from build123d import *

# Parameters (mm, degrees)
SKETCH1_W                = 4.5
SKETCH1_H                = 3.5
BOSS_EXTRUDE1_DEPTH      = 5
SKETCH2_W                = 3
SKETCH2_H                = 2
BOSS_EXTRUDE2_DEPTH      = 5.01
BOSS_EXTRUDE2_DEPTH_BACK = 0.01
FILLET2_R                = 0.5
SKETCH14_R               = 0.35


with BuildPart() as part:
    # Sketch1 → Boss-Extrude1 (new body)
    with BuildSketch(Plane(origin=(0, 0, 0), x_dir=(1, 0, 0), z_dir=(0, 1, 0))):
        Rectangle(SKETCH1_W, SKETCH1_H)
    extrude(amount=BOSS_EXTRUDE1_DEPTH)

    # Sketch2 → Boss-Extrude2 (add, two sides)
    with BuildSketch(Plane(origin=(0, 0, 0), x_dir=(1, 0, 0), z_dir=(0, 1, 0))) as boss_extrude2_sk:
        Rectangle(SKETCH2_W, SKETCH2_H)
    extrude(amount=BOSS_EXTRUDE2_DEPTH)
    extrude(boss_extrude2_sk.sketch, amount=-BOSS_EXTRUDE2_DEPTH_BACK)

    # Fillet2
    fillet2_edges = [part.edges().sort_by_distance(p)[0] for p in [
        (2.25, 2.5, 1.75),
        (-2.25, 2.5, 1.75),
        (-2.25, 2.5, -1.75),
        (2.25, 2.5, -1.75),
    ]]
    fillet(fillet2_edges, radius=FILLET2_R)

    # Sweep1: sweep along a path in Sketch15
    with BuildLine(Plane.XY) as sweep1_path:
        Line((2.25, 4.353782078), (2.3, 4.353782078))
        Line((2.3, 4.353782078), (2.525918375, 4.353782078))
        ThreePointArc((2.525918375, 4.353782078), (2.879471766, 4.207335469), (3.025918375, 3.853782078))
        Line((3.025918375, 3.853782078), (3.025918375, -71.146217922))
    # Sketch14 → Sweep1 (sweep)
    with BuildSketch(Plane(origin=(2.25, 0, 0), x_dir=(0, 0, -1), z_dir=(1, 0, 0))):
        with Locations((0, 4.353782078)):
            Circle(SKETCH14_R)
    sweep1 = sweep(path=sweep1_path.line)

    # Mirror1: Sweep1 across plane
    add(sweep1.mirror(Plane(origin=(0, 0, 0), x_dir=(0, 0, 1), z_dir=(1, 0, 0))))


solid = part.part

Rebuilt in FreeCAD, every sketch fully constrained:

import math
import FreeCAD as App
import Part
import Sketcher


def edges_at(feature, points):
    """Names of the edges that pass closest to the given points."""
    edges = feature.Shape.Edges
    near = lambda p: min(range(len(edges)), key=lambda i: edges[i].distToShape(Part.Vertex(*p))[0])
    return sorted({f"Edge{near(p) + 1}" for p in points})


def add_polygon(sketch, points):
    """Adds a closed chain of lines whose ends are joined by coincident constraints."""
    first, n = sketch.GeometryCount, len(points)
    for a, b in zip(points, points[1:] + points[:1]):
        sketch.addGeometry(Part.LineSegment(App.Vector(*a, 0), App.Vector(*b, 0)), False)
    for i in range(n):
        sketch.addConstraint(Sketcher.Constraint("Coincident", first + i, 2, first + (i + 1) % n, 1))

doc = App.newDocument("Part")
body = doc.addObject("PartDesign::Body", "Body")

# Sketch on XZ plane
sketch1 = body.newObject("Sketcher::SketchObject", "Sketch")
sketch1.AttachmentSupport = (doc.getObject("XZ_Plane"), [""])
sketch1.MapMode = "FlatFace"
add_polygon(sketch1, [(-2.2, -1.8), (-2.2, 1.8), (2.2, 1.8), (2.2, -1.8)])  # lines 0-3
sketch1.addConstraint(Sketcher.Constraint("Vertical", 0))
sketch1.addConstraint(Sketcher.Constraint("Horizontal", 1))
sketch1.addConstraint(Sketcher.Constraint("Vertical", 2))
sketch1.addConstraint(Sketcher.Constraint("Horizontal", 3))
sketch1.addConstraint(Sketcher.Constraint("Symmetric", 0, 2, 2, 2, -1, 1))
sketch1.addConstraint(Sketcher.Constraint("DistanceX", 1, 1, 1, 2, 4.5))
sketch1.addConstraint(Sketcher.Constraint("DistanceY", 0, 1, 0, 2, 3.5))
pad1 = body.newObject("PartDesign::Pad", "Pad")
pad1.Profile = sketch1
pad1.Length = 5
pad1.Reversed = True

# Sketch on XZ plane
sketch2 = body.newObject("Sketcher::SketchObject", "Sketch001")
sketch2.AttachmentSupport = (doc.getObject("XZ_Plane"), [""])
sketch2.MapMode = "FlatFace"
add_polygon(sketch2, [(-1.5, -1), (-1.5, 1), (1.5, 1), (1.5, -1)])  # lines 0-3
sketch2.addConstraint(Sketcher.Constraint("Vertical", 0))
sketch2.addConstraint(Sketcher.Constraint("Horizontal", 1))
sketch2.addConstraint(Sketcher.Constraint("Vertical", 2))
sketch2.addConstraint(Sketcher.Constraint("Horizontal", 3))
sketch2.addConstraint(Sketcher.Constraint("Symmetric", 0, 2, 2, 2, -1, 1))
sketch2.addConstraint(Sketcher.Constraint("DistanceX", 1, 1, 1, 2, 3.0))
sketch2.addConstraint(Sketcher.Constraint("DistanceY", 0, 1, 0, 2, 2.0))
pad2 = body.newObject("PartDesign::Pad", "Pad001")
pad2.Profile = sketch2
pad2.Type = "TwoLengths"
pad2.Length = 5.01
pad2.Length2 = 0.01
pad2.Reversed = True
doc.recompute()

fillet = body.newObject("PartDesign::Fillet", "Fillet")
fillet.Base = (pad2, edges_at(pad2, [
    (2.25, 2.5, 1.75),
    (-2.25, 2.5, 1.75),
    (-2.25, 2.5, -1.75),
    (2.25, 2.5, -1.75),
]))
fillet.Radius = 0.5

# Sketch on YZ plane
sketch3 = body.newObject("Sketcher::SketchObject", "Sketch002")
sketch3.AttachmentSupport = (doc.getObject("YZ_Plane"), [""])
sketch3.MapMode = "FlatFace"
sketch3.AttachmentOffset = App.Placement(App.Vector(0, 0, 2.25), App.Rotation())
sketch3.addGeometry(Part.Circle(App.Vector(4.35, 0, 0), App.Vector(0, 0, 1), 0.35), False)
sketch3.addConstraint(Sketcher.Constraint("PointOnObject", 0, 3, -1))
sketch3.addConstraint(Sketcher.Constraint("Diameter", 0, 0.7))
sketch3.addConstraint(Sketcher.Constraint("DistanceX", -1, 1, 0, 3, 4.353782))

# Sketch on XY plane
sketch4 = body.newObject("Sketcher::SketchObject", "Sketch003")
sketch4.AttachmentSupport = (doc.getObject("XY_Plane"), [""])
sketch4.MapMode = "FlatFace"
sketch4.addGeometry(Part.LineSegment(App.Vector(2.25, 4.35, 0), App.Vector(2.53, 4.35, 0)), False)
sketch4.addGeometry(Part.ArcOfCircle(Part.Circle(App.Vector(2.53, 3.85, 0), App.Vector(0, 0, 1), 0.5), math.radians(0), math.radians(90)), False)
sketch4.addGeometry(Part.LineSegment(App.Vector(3.03, 3.85, 0), App.Vector(3.03, -71.15, 0)), False)
sketch4.addConstraint(Sketcher.Constraint("Tangent", 0, 2, 1, 2))
sketch4.addConstraint(Sketcher.Constraint("Tangent", 1, 1, 2, 1))
sketch4.addConstraint(Sketcher.Constraint("Horizontal", 0))
sketch4.addConstraint(Sketcher.Constraint("Vertical", 2))
sketch4.addConstraint(Sketcher.Constraint("Radius", 1, 0.5))
sketch4.addConstraint(Sketcher.Constraint("DistanceY", 2, 2, 2, 1, 75.0))
sketch4.addConstraint(Sketcher.Constraint("DistanceX", -1, 1, 0, 1, 2.25))
sketch4.addConstraint(Sketcher.Constraint("DistanceX", 0, 1, 0, 2, 0.275918))
sketch4.addConstraint(Sketcher.Constraint("DistanceY", -1, 1, 1, 3, 3.853782))
doc.recompute()

additivepipe = body.newObject("PartDesign::AdditivePipe", "AdditivePipe")
additivepipe.Profile = sketch3
additivepipe.Spine = (sketch4, ["Edge1", "Edge2", "Edge3"])
doc.recompute()

mirrored = body.newObject("PartDesign::Mirrored", "Mirrored")
mirrored.Originals = [additivepipe]
mirrored.MirrorPlane = (doc.getObject("YZ_Plane"), [""])
body.Tip = mirrored

doc.recompute()
